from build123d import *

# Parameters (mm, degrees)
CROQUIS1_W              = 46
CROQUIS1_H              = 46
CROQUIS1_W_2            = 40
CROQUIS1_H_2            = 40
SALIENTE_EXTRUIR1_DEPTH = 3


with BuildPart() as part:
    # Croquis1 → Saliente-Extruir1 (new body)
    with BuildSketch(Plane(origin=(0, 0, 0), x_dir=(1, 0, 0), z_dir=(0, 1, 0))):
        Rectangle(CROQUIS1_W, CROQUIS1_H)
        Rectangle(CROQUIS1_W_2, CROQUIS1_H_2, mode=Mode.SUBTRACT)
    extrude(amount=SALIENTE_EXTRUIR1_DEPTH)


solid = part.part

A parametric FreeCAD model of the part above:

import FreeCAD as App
import Part
import Sketcher
from FreeCAD import Vector
Q = App.Units.Quantity

doc = App.newDocument("Part")
body = doc.addObject("PartDesign::Body", "Body")

sketch1 = doc.addObject("Sketcher::SketchObject", "Sketch")
body.addObject(sketch1)
sketch1.AttachmentSupport = (doc.XZ_Plane, [""])
sketch1.MapMode = "FlatFace"
sketch1.addGeometry([
    Part.LineSegment(Vector(-23, -23, 0), Vector(-23, 23, 0)),
    Part.LineSegment(Vector(-23, 23, 0), Vector(23, 23, 0)),
    Part.LineSegment(Vector(23, 23, 0), Vector(23, -23, 0)),
    Part.LineSegment(Vector(23, -23, 0), Vector(-23, -23, 0)),
    Part.LineSegment(Vector(20, 20, 0), Vector(-20, 20, 0)),
    Part.LineSegment(Vector(-20, 20, 0), Vector(-20, -20, 0)),
    Part.LineSegment(Vector(-20, -20, 0), Vector(20, -20, 0)),
    Part.LineSegment(Vector(20, -20, 0), Vector(20, 20, 0)),
], False)
sketch1.addConstraint([
    Sketcher.Constraint("Coincident", 0, 2, 1, 1),
    Sketcher.Constraint("Coincident", 1, 2, 2, 1),
    Sketcher.Constraint("Coincident", 2, 2, 3, 1),
    Sketcher.Constraint("Coincident", 3, 2, 0, 1),
    Sketcher.Constraint("Coincident", 4, 2, 5, 1),
    Sketcher.Constraint("Coincident", 5, 2, 6, 1),
    Sketcher.Constraint("Coincident", 6, 2, 7, 1),
    Sketcher.Constraint("Coincident", 7, 2, 4, 1),
    Sketcher.Constraint("Vertical", 0),
    Sketcher.Constraint("Horizontal", 1),
    Sketcher.Constraint("Vertical", 2),
    Sketcher.Constraint("Horizontal", 3),
    Sketcher.Constraint("Horizontal", 4),
    Sketcher.Constraint("Vertical", 5),
    Sketcher.Constraint("Horizontal", 6),
    Sketcher.Constraint("Vertical", 7),
    Sketcher.Constraint("Symmetric", 0, 2, 2, 2, -1, 1),
    Sketcher.Constraint("Symmetric", 4, 2, 6, 2, -1, 1),
    Sketcher.Constraint("Equal", 3, 0),
    Sketcher.Constraint("Equal", 6, 5),
    Sketcher.Constraint("DistanceX", 1, 1, 1, 2, Q("46 mm")),
    Sketcher.Constraint("DistanceX", 4, 2, 4, 1, Q("40 mm")),
])
pad1 = doc.addObject("PartDesign::Pad", "Pad")
body.addObject(pad1)
pad1.Profile = sketch1
pad1.Length = 3
pad1.Reversed = True

doc.recompute()
